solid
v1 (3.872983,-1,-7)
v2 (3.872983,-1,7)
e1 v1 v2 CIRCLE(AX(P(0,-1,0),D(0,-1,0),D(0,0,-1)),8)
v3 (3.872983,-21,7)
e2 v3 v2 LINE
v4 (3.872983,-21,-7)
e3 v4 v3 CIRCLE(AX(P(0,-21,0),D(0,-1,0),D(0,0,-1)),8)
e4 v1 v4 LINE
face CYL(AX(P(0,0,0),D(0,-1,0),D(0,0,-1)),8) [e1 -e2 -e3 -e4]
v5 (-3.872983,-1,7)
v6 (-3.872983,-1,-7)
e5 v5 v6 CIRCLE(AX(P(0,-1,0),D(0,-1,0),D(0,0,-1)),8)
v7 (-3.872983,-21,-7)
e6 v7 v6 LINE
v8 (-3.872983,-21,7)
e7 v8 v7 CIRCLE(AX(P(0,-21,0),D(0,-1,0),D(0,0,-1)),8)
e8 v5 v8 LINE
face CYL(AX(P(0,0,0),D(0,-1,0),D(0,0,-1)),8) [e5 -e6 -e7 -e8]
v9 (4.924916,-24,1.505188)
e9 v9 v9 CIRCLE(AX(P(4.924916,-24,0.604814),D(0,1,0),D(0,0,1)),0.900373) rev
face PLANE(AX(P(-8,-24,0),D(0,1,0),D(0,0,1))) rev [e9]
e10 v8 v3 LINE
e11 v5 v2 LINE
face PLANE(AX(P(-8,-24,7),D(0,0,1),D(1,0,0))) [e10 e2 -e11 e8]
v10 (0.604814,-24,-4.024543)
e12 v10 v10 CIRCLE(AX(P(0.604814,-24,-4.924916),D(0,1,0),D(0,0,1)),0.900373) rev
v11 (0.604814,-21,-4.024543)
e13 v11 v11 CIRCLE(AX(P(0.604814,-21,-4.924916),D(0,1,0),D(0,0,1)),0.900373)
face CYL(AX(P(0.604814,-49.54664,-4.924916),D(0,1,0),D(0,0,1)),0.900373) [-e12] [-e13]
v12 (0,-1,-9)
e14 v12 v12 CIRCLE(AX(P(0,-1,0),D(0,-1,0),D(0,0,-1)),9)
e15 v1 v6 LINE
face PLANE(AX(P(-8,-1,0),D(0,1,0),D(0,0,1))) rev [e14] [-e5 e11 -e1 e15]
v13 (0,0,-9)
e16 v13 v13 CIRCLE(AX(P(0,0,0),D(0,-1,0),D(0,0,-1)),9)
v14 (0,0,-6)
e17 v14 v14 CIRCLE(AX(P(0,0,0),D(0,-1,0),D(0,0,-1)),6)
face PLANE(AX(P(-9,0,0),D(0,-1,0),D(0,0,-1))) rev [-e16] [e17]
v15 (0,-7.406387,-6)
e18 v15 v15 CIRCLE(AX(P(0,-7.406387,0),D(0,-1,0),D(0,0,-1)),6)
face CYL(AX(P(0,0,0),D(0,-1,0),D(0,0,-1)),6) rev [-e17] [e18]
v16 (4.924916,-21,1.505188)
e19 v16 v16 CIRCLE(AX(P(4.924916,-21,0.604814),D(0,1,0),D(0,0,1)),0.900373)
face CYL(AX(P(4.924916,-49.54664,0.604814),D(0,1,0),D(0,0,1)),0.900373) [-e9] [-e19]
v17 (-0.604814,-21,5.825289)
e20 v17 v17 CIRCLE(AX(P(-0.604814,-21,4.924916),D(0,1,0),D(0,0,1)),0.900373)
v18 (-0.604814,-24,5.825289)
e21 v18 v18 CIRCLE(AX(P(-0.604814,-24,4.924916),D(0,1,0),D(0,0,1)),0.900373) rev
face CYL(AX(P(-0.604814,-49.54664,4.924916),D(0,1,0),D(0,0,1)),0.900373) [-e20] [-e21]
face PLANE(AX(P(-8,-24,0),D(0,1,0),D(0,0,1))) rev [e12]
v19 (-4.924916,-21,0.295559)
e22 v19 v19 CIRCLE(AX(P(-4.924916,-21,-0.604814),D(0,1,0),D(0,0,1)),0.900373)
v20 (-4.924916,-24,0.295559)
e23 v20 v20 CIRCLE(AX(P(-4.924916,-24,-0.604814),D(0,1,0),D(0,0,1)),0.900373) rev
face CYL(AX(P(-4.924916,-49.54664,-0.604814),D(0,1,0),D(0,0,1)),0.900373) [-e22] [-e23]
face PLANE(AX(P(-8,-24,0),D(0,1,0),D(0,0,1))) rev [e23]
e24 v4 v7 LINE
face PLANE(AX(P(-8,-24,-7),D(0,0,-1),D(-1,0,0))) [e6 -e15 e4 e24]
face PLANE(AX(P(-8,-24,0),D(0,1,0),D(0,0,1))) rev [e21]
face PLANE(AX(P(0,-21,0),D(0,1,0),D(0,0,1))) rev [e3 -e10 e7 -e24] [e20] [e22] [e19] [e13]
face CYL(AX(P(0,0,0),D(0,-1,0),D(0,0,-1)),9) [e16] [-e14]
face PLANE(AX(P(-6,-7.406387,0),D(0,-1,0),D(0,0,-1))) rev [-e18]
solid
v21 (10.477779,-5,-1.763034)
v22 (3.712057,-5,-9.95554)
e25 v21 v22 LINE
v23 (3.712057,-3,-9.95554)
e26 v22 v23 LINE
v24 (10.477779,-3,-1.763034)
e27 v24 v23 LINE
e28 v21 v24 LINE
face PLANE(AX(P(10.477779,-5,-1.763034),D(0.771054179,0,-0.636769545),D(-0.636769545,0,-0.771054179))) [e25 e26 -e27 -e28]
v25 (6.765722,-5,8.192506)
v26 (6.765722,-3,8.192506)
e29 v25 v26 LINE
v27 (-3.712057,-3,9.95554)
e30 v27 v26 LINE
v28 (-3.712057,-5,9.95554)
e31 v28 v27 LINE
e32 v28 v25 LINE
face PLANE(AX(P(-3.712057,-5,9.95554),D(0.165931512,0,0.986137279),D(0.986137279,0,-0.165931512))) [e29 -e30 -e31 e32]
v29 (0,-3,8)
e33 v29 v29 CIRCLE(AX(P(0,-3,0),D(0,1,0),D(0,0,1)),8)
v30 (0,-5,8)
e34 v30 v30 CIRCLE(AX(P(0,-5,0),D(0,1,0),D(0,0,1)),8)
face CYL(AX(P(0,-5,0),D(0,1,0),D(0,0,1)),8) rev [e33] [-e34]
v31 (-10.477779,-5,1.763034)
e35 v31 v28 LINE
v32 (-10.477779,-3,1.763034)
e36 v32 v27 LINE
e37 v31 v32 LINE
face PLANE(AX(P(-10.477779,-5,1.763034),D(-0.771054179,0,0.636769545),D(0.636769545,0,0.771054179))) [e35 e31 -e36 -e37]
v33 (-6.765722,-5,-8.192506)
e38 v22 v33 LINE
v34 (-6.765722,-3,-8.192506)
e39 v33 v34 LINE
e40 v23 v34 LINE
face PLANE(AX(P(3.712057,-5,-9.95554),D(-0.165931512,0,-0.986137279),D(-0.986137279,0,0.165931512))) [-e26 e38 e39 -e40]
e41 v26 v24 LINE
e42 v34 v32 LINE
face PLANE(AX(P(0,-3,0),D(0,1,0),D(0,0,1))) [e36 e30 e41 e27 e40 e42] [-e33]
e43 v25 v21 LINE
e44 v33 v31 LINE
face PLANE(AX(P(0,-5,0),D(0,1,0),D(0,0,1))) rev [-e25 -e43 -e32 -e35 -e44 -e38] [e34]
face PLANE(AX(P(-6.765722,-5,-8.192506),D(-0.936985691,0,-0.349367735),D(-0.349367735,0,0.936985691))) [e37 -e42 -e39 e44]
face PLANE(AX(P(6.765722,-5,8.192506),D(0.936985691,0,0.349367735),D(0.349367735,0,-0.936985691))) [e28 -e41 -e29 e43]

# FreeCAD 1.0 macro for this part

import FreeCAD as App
import Part
import Sketcher
from FreeCAD import Vector

doc = App.newDocument("Part")
body = doc.addObject("PartDesign::Body", "Body")

# Sketch on XY plane
sketch1 = body.newObject("Sketcher::SketchObject", "Sketch")
sketch1.AttachmentSupport = (doc.getObject("XY_Plane"), [""])
sketch1.MapMode = "FlatFace"
sketch1.addGeometry([
    Part.LineSegment(Vector(-6, 0, 0), Vector(-9, 0, 0)),  # 0
    Part.LineSegment(Vector(-9, 0, 0), Vector(-9, -1, 0)),  # 1
    Part.LineSegment(Vector(-9, -1, 0), Vector(-8, -1, 0)),  # 2
    Part.LineSegment(Vector(-8, -1, 0), Vector(-8, -21, 0)),  # 3
    Part.LineSegment(Vector(-8, -21, 0), Vector(0, -21, 0)),  # 4
    Part.LineSegment(Vector(0, -21, 0), Vector(0, -7.4, 0)),  # 5
    Part.LineSegment(Vector(0, -7.4, 0), Vector(-6, -7.4, 0)),  # 6
    Part.LineSegment(Vector(-6, -7.4, 0), Vector(-6, 0, 0)),  # 7
], False)
sketch1.addConstraint([
    Sketcher.Constraint("Coincident", 0, 2, 1, 1),
    Sketcher.Constraint("Coincident", 1, 2, 2, 1),
    Sketcher.Constraint("Coincident", 2, 2, 3, 1),
    Sketcher.Constraint("Coincident", 3, 2, 4, 1),
    Sketcher.Constraint("Coincident", 4, 2, 5, 1),
    Sketcher.Constraint("Coincident", 5, 2, 6, 1),
    Sketcher.Constraint("Coincident", 6, 2, 7, 1),
    Sketcher.Constraint("Coincident", 7, 2, 0, 1),
    Sketcher.Constraint("Horizontal", 0),
    Sketcher.Constraint("Vertical", 1),
    Sketcher.Constraint("Horizontal", 2),
    Sketcher.Constraint("Vertical", 3),
    Sketcher.Constraint("Horizontal", 4),
    Sketcher.Constraint("Vertical", 5),
    Sketcher.Constraint("Horizontal", 6),
    Sketcher.Constraint("Vertical", 7),
    Sketcher.Constraint("PointOnObject", 0, 2, -1),
    Sketcher.Constraint("PointOnObject", 4, 2, -2),
    Sketcher.Constraint("Equal", 2, 1),
    Sketcher.Constraint("DistanceX", 0, 2, 0, 1, 3.0),
    Sketcher.Constraint("DistanceX", 2, 1, 2, 2, 1.0),
    Sketcher.Constraint("DistanceX", 4, 1, 4, 2, 8.0),
    Sketcher.Constraint("DistanceY", 3, 2, 3, 1, 20.0),
    Sketcher.Constraint("DistanceY", 5, 1, 5, 2, 13.593613),
])
revolution = body.newObject("PartDesign::Revolution", "Revolution")
revolution.Profile = sketch1
revolution.ReferenceAxis = (sketch1, ["V_Axis"])
revolution.Angle = 360

# Sketch on XZ plane
sketch2 = body.newObject("Sketcher::SketchObject", "Sketch001")
sketch2.AttachmentSupport = (doc.getObject("XZ_Plane"), [""])
sketch2.MapMode = "FlatFace"
sketch2.AttachmentOffset = App.Placement(Vector(0, 0, 21), App.Rotation())
sketch2.addGeometry(Part.Circle(Vector(0.6, -4.9, 0), Vector(0, 0, 1), 0.9), False)
sketch2.addConstraint([
    Sketcher.Constraint("Diameter", 0, 1.800746),
    Sketcher.Constraint("DistanceX", -1, 1, 0, 3, 0.604814),
    Sketcher.Constraint("DistanceY", 0, 3, -1, 1, 4.924916),
])
pad1 = body.newObject("PartDesign::Pad", "Pad")
pad1.Profile = sketch2
pad1.Length = 3
doc.recompute()

polarpattern = body.newObject("PartDesign::PolarPattern", "PolarPattern")
polarpattern.Originals = [pad1]
polarpattern.Axis = (doc.getObject("Y_Axis"), [""])
polarpattern.Angle = 360
polarpattern.Occurrences = 4
body.Tip = polarpattern

# Sketch on XZ plane
sketch3 = body.newObject("Sketcher::SketchObject", "Sketch002")
sketch3.AttachmentSupport = (doc.getObject("XZ_Plane"), [""])
sketch3.MapMode = "FlatFace"
sketch3.AttachmentOffset = App.Placement(Vector(0, 0, 1), App.Rotation())
sketch3.addGeometry([
    Part.LineSegment(Vector(-51, -33, 0), Vector(-51, 33, 0)),  # 0
    Part.LineSegment(Vector(-51, 33, 0), Vector(51, 33, 0)),  # 1
    Part.LineSegment(Vector(51, 33, 0), Vector(51, -33, 0)),  # 2
    Part.LineSegment(Vector(51, -33, 0), Vector(-51, -33, 0)),  # 3
    Part.LineSegment(Vector(22, 7, 0), Vector(-22, 7, 0)),  # 4
    Part.LineSegment(Vector(-22, 7, 0), Vector(-22, -7, 0)),  # 5
    Part.LineSegment(Vector(-22, -7, 0), Vector(22, -7, 0)),  # 6
    Part.LineSegment(Vector(22, -7, 0), Vector(22, 7, 0)),  # 7
], False)
sketch3.addConstraint([
    Sketcher.Constraint("Coincident", 0, 2, 1, 1),
    Sketcher.Constraint("Coincident", 1, 2, 2, 1),
    Sketcher.Constraint("Coincident", 2, 2, 3, 1),
    Sketcher.Constraint("Coincident", 3, 2, 0, 1),
    Sketcher.Constraint("Coincident", 4, 2, 5, 1),
    Sketcher.Constraint("Coincident", 5, 2, 6, 1),
    Sketcher.Constraint("Coincident", 6, 2, 7, 1),
    Sketcher.Constraint("Coincident", 7, 2, 4, 1),
    Sketcher.Constraint("Vertical", 0),
    Sketcher.Constraint("Horizontal", 1),
    Sketcher.Constraint("Vertical", 2),
    Sketcher.Constraint("Horizontal", 3),
    Sketcher.Constraint("Horizontal", 4),
    Sketcher.Constraint("Vertical", 5),
    Sketcher.Constraint("Horizontal", 6),
    Sketcher.Constraint("Vertical", 7),
    Sketcher.Constraint("Symmetric", 0, 2, 2, 2, -1, 1),
    Sketcher.Constraint("Symmetric", 4, 2, 6, 2, -1, 1),
    Sketcher.Constraint("DistanceY", 5, 2, 5, 1, 14.0),
    Sketcher.Constraint("DistanceX", 4, 2, 4, 1, 44.050821),
    Sketcher.Constraint("DistanceX", 1, 1, 1, 2, 102.873705),
    Sketcher.Constraint("DistanceY", 0, 1, 0, 2, 65.633955),
])
pocket1 = body.newObject("PartDesign::Pocket", "Pocket")
pocket1.Profile = sketch3
pocket1.Type = "ThroughAll"
pocket1.Reversed = True
body2 = doc.addObject("PartDesign::Body", "Body001")

# Sketch on XZ plane
sketch4 = body2.newObject("Sketcher::SketchObject", "Sketch003")
sketch4.AttachmentSupport = (doc.getObject("XZ_Plane001"), [""])
sketch4.MapMode = "FlatFace"
sketch4.AttachmentOffset = App.Placement(Vector(0, 0, 3), App.Rotation())
sketch4.addGeometry([
    Part.LineSegment(Vector(10, -2, 0), Vector(4, -10, 0)),  # 0
    Part.LineSegment(Vector(4, -10, 0), Vector(-7, -8, 0)),  # 1
    Part.LineSegment(Vector(-7, -8, 0), Vector(-10, 2, 0)),  # 2
    Part.LineSegment(Vector(-10, 2, 0), Vector(-4, 10, 0)),  # 3
    Part.LineSegment(Vector(-4, 10, 0), Vector(7, 8, 0)),  # 4
    Part.LineSegment(Vector(7, 8, 0), Vector(10, -2, 0)),  # 5
    Part.Circle(Vector(0, 0, 0), Vector(0, 0, 1), 8),  # 6
], False)
sketch4.addConstraint([
    Sketcher.Constraint("Coincident", 0, 2, 1, 1),
    Sketcher.Constraint("Coincident", 1, 2, 2, 1),
    Sketcher.Constraint("Coincident", 2, 2, 3, 1),
    Sketcher.Constraint("Coincident", 3, 2, 4, 1),
    Sketcher.Constraint("Coincident", 4, 2, 5, 1),
    Sketcher.Constraint("Coincident", 5, 2, 0, 1),
    Sketcher.Constraint("Coincident", 6, 3, -1, 1),
    Sketcher.Constraint("Symmetric", 0, 2, 3, 2, -1, 1),
    Sketcher.Constraint("Symmetric", 1, 2, 4, 2, -1, 1),
    Sketcher.Constraint("Symmetric", 2, 2, 5, 2, -1, 1),
    Sketcher.Constraint("Equal", 0, 1),
    Sketcher.Constraint("Equal", 1, 2),
    Sketcher.Constraint("Diameter", 6, 16.0),
    Sketcher.Constraint("DistanceX", 2, 2, 4, 2, 17.243501),
    Sketcher.Constraint("Distance", 0, 10.625071),
    Sketcher.Constraint("DistanceY", 0, 2, -1, 1, 9.95554),
    Sketcher.Constraint("DistanceX", 1, 2, -1, 1, 6.765722),
])
pad2 = body2.newObject("PartDesign::Pad", "Pad001")
pad2.Profile = sketch4
pad2.Length = 2

doc.recompute()
